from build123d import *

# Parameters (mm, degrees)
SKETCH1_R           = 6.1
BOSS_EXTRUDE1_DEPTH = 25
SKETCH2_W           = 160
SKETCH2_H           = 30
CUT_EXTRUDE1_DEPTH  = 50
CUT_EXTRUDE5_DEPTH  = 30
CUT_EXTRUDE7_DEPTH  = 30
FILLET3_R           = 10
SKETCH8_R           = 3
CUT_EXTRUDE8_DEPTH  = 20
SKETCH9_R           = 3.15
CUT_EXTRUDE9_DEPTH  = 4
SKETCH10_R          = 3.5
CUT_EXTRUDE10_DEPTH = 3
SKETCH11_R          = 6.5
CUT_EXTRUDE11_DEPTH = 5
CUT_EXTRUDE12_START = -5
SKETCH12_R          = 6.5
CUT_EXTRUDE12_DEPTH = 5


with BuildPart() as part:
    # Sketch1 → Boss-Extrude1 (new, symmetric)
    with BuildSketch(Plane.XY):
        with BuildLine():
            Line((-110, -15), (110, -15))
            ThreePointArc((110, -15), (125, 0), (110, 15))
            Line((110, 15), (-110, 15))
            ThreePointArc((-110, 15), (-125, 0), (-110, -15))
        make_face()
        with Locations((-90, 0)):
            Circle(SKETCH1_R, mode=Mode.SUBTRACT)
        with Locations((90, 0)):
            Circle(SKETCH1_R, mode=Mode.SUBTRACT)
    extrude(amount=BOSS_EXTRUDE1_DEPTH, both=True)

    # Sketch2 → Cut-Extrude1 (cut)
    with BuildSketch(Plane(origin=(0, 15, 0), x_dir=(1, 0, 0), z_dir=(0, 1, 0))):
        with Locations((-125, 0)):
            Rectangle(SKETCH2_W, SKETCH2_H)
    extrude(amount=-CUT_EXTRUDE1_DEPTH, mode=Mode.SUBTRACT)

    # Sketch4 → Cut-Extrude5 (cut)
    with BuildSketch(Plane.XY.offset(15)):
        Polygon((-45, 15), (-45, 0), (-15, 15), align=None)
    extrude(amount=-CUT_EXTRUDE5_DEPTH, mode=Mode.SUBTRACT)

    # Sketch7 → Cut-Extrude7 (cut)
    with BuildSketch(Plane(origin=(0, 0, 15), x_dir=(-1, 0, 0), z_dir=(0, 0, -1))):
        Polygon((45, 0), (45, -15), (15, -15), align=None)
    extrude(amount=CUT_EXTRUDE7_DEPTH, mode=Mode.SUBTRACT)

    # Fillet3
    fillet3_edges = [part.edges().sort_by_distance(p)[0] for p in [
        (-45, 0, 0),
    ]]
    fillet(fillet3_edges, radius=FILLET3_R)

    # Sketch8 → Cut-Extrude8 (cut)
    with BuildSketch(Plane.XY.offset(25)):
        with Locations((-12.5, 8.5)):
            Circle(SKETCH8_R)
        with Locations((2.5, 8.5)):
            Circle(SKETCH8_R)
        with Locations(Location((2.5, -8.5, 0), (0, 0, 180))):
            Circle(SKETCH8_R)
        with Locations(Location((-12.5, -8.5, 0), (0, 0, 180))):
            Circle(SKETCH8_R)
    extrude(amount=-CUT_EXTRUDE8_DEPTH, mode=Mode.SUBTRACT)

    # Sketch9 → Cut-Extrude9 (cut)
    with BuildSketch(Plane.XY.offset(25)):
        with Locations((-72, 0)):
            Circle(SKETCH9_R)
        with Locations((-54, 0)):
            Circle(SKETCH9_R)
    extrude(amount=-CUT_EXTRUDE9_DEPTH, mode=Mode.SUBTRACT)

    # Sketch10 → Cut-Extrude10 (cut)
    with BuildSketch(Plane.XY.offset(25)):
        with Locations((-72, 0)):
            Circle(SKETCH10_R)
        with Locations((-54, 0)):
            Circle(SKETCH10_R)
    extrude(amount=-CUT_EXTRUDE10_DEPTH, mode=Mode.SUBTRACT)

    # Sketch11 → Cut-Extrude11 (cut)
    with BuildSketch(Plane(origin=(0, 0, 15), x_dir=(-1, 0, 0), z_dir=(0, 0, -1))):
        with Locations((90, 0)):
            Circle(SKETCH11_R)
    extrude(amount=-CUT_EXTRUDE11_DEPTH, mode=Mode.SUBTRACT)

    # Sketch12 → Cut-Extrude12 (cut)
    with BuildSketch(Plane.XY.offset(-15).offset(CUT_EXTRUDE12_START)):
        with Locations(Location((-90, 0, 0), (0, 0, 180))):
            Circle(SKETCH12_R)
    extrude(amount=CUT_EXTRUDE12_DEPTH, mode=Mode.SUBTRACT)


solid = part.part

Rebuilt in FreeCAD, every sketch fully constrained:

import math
import FreeCAD as App
import Part
import Sketcher
from FreeCAD import Vector
Q = App.Units.Quantity


def edges_at(feature, points):
    """Names of the edges that pass closest to the given points."""
    edges = feature.Shape.Edges
    near = lambda p: min(range(len(edges)), key=lambda i: edges[i].distToShape(Part.Vertex(*p))[0])
    return sorted({f"Edge{near(p) + 1}" for p in points})


def add_polygon(sketch, points):
    """Adds a closed chain of lines whose ends are joined by coincident constraints."""
    first, n = sketch.GeometryCount, len(points)
    for a, b in zip(points, points[1:] + points[:1]):
        sketch.addGeometry(Part.LineSegment(App.Vector(*a, 0), App.Vector(*b, 0)), False)
    for i in range(n):
        sketch.addConstraint(Sketcher.Constraint("Coincident", first + i, 2, first + (i + 1) % n, 1))

doc = App.newDocument("Part")
body = doc.addObject("PartDesign::Body", "Body")

sketch1 = body.newObject("Sketcher::SketchObject", "Sketch")
sketch1.AttachmentSupport = (doc.getObject("XY_Plane"), [""])
sketch1.MapMode = "FlatFace"
sketch1.addGeometry([
    Part.LineSegment(Vector(-110, -15, 0), Vector(110, -15, 0)),
    Part.ArcOfCircle(Part.Circle(Vector(110, 0, 0), Vector(0, 0, 1), 15), math.radians(-90), math.radians(90)),
    Part.LineSegment(Vector(110, 15, 0), Vector(-110, 15, 0)),
    Part.ArcOfCircle(Part.Circle(Vector(-110, 0, 0), Vector(0, 0, 1), 15), math.radians(90), math.radians(270)),
    Part.Circle(Vector(-90, 0, 0), Vector(0, 0, 1), 6.1),
    Part.Circle(Vector(90, 0, 0), Vector(0, 0, 1), 6.1),
], False)
sketch1.addConstraint([
    Sketcher.Constraint("Tangent", 0, 2, 1, 1),
    Sketcher.Constraint("Tangent", 1, 2, 2, 1),
    Sketcher.Constraint("Tangent", 2, 2, 3, 1),
    Sketcher.Constraint("Tangent", 3, 2, 0, 1),
    Sketcher.Constraint("Horizontal", 0),
    Sketcher.Constraint("Horizontal", 2),
    Sketcher.Constraint("Equal", 4, 5),
    Sketcher.Constraint("Symmetric", 1, 3, 3, 3, -1, 1),
    Sketcher.Constraint("Symmetric", 4, 3, 5, 3, -1, 1),
    Sketcher.Constraint("PointOnObject", 4, 3, -1),
    Sketcher.Constraint("Radius", 1, Q("15 mm")),
    Sketcher.Constraint("Diameter", 4, Q("12.2 mm")),
    Sketcher.Constraint("DistanceX", 0, 1, 0, 2, Q("220 mm")),
    Sketcher.Constraint("DistanceX", 4, 3, -1, 1, Q("90 mm")),
])
pad1 = body.newObject("PartDesign::Pad", "Pad")
pad1.Profile = sketch1
pad1.Length = 50
pad1.Midplane = True

sketch2 = body.newObject("Sketcher::SketchObject", "Sketch001")
sketch2.AttachmentSupport = (doc.getObject("XZ_Plane"), [""])
sketch2.MapMode = "FlatFace"
sketch2.AttachmentOffset = App.Placement(Vector(0, 0, -15), App.Rotation())
add_polygon(sketch2, [(-205, -15), (-205, 15), (-45, 15), (-45, -15)])
sketch2.addConstraint([
    Sketcher.Constraint("Vertical", 0),
    Sketcher.Constraint("Horizontal", 1),
    Sketcher.Constraint("Vertical", 2),
    Sketcher.Constraint("Horizontal", 3),
    Sketcher.Constraint("DistanceX", 1, 1, 1, 2, Q("160 mm")),
    Sketcher.Constraint("DistanceY", 0, 1, 0, 2, Q("30 mm")),
    Sketcher.Constraint("DistanceX", 0, 2, -1, 1, Q("205 mm")),
    Sketcher.Constraint("DistanceY", -1, 1, 0, 2, Q("15 mm")),
])
pocket1 = body.newObject("PartDesign::Pocket", "Pocket")
pocket1.Profile = sketch2
pocket1.Length = 50
pocket1.Reversed = True

sketch3 = body.newObject("Sketcher::SketchObject", "Sketch002")
sketch3.AttachmentSupport = (doc.getObject("XY_Plane"), [""])
sketch3.MapMode = "FlatFace"
sketch3.AttachmentOffset = App.Placement(Vector(0, 0, 15), App.Rotation())
add_polygon(sketch3, [(-45, 15), (-45, 0), (-15, 15)])
sketch3.addConstraint([
    Sketcher.Constraint("Vertical", 0),
    Sketcher.Constraint("Horizontal", 2),
    Sketcher.Constraint("PointOnObject", 0, 2, -1),
    Sketcher.Constraint("DistanceX", 2, 2, 2, 1, Q("30 mm")),
    Sketcher.Constraint("DistanceY", 0, 2, 0, 1, Q("15 mm")),
    Sketcher.Constraint("DistanceX", 0, 2, -1, 1, Q("45 mm")),
])
pocket2 = body.newObject("PartDesign::Pocket", "Pocket001")
pocket2.Profile = sketch3
pocket2.Length = 30

sketch4 = body.newObject("Sketcher::SketchObject", "Sketch003")
sketch4.AttachmentSupport = (doc.getObject("XY_Plane"), [""])
sketch4.MapMode = "FlatFace"
sketch4.AttachmentOffset = App.Placement(Vector(0, 0, 15), App.Rotation())
add_polygon(sketch4, [(-45, -15), (-45, 0), (-15, -15)])
sketch4.addConstraint([
    Sketcher.Constraint("Vertical", 0),
    Sketcher.Constraint("Horizontal", 2),
    Sketcher.Constraint("PointOnObject", 0, 2, -1),
    Sketcher.Constraint("DistanceX", 2, 2, 2, 1, Q("30 mm")),
    Sketcher.Constraint("DistanceY", 0, 1, 0, 2, Q("15 mm")),
    Sketcher.Constraint("DistanceX", 0, 2, -1, 1, Q("45 mm")),
])
pocket3 = body.newObject("PartDesign::Pocket", "Pocket002")
pocket3.Profile = sketch4
pocket3.Length = 30
doc.recompute()

fillet = body.newObject("PartDesign::Fillet", "Fillet")
fillet.Base = (pocket3, edges_at(pocket3, [(-45, 0, 0)]))
fillet.Radius = 10

sketch5 = body.newObject("Sketcher::SketchObject", "Sketch004")
sketch5.AttachmentSupport = (doc.getObject("XY_Plane"), [""])
sketch5.MapMode = "FlatFace"
sketch5.AttachmentOffset = App.Placement(Vector(0, 0, 25), App.Rotation())
sketch5.addGeometry([
    Part.Circle(Vector(-12.5, 8.5, 0), Vector(0, 0, 1), 3),
    Part.Circle(Vector(2.5, 8.5, 0), Vector(0, 0, 1), 3),
    Part.Circle(Vector(2.5, -8.5, 0), Vector(0, 0, 1), 3),
    Part.Circle(Vector(-12.5, -8.5, 0), Vector(0, 0, 1), 3),
], False)
sketch5.addConstraint([
    Sketcher.Constraint("Equal", 0, 1),
    Sketcher.Constraint("Equal", 1, 2),
    Sketcher.Constraint("Equal", 2, 3),
    Sketcher.Constraint("Symmetric", 1, 3, 2, 3, -1),
    Sketcher.Constraint("Symmetric", 0, 3, 3, 3, -1),
    Sketcher.Constraint("Horizontal", 0, 3, 1, 3),
    Sketcher.Constraint("Diameter", 0, Q("6 mm")),
    Sketcher.Constraint("DistanceX", 0, 3, 1, 3, Q("15 mm")),
    Sketcher.Constraint("DistanceY", 2, 3, 1, 3, Q("17 mm")),
    Sketcher.Constraint("DistanceX", 0, 3, -1, 1, Q("12.5 mm")),
])
pocket4 = body.newObject("PartDesign::Pocket", "Pocket003")
pocket4.Profile = sketch5
pocket4.Length = 20

sketch6 = body.newObject("Sketcher::SketchObject", "Sketch005")
sketch6.AttachmentSupport = (doc.getObject("XY_Plane"), [""])
sketch6.MapMode = "FlatFace"
sketch6.AttachmentOffset = App.Placement(Vector(0, 0, 25), App.Rotation())
sketch6.addGeometry([
    Part.Circle(Vector(-72, 0, 0), Vector(0, 0, 1), 3.15),
    Part.Circle(Vector(-54, 0, 0), Vector(0, 0, 1), 3.15),
], False)
sketch6.addConstraint([
    Sketcher.Constraint("Equal", 0, 1),
    Sketcher.Constraint("PointOnObject", 0, 3, -1),
    Sketcher.Constraint("PointOnObject", 1, 3, -1),
    Sketcher.Constraint("Diameter", 0, Q("6.3 mm")),
    Sketcher.Constraint("DistanceX", 0, 3, -1, 1, Q("72 mm")),
    Sketcher.Constraint("DistanceX", 1, 3, -1, 1, Q("54 mm")),
])
pocket5 = body.newObject("PartDesign::Pocket", "Pocket004")
pocket5.Profile = sketch6
pocket5.Length = 4

sketch7 = body.newObject("Sketcher::SketchObject", "Sketch006")
sketch7.AttachmentSupport = (doc.getObject("XY_Plane"), [""])
sketch7.MapMode = "FlatFace"
sketch7.AttachmentOffset = App.Placement(Vector(0, 0, 25), App.Rotation())
sketch7.addGeometry([
    Part.Circle(Vector(-72, 0, 0), Vector(0, 0, 1), 3.5),
    Part.Circle(Vector(-54, 0, 0), Vector(0, 0, 1), 3.5),
], False)
sketch7.addConstraint([
    Sketcher.Constraint("Equal", 0, 1),
    Sketcher.Constraint("PointOnObject", 0, 3, -1),
    Sketcher.Constraint("PointOnObject", 1, 3, -1),
    Sketcher.Constraint("Diameter", 0, Q("7 mm")),
    Sketcher.Constraint("DistanceX", 0, 3, -1, 1, Q("72 mm")),
    Sketcher.Constraint("DistanceX", 1, 3, -1, 1, Q("54 mm")),
])
pocket6 = body.newObject("PartDesign::Pocket", "Pocket005")
pocket6.Profile = sketch7
pocket6.Length = 3

sketch8 = body.newObject("Sketcher::SketchObject", "Sketch007")
sketch8.AttachmentSupport = (doc.getObject("XY_Plane"), [""])
sketch8.MapMode = "FlatFace"
sketch8.AttachmentOffset = App.Placement(Vector(0, 0, 15), App.Rotation())
sketch8.addGeometry(Part.Circle(Vector(-90, 0, 0), Vector(0, 0, 1), 6.5), False)
sketch8.addConstraint([
    Sketcher.Constraint("PointOnObject", 0, 3, -1),
    Sketcher.Constraint("Diameter", 0, Q("13 mm")),
    Sketcher.Constraint("DistanceX", 0, 3, -1, 1, Q("90 mm")),
])
pocket7 = body.newObject("PartDesign::Pocket", "Pocket006")
pocket7.Profile = sketch8
pocket7.Length = 5
pocket7.Reversed = True

sketch9 = body.newObject("Sketcher::SketchObject", "Sketch008")
sketch9.AttachmentSupport = (doc.getObject("XY_Plane"), [""])
sketch9.MapMode = "FlatFace"
sketch9.AttachmentOffset = App.Placement(Vector(0, 0, -20), App.Rotation())
sketch9.addGeometry(Part.Circle(Vector(-90, 0, 0), Vector(0, 0, 1), 6.5), False)
sketch9.addConstraint([
    Sketcher.Constraint("PointOnObject", 0, 3, -1),
    Sketcher.Constraint("Diameter", 0, Q("13 mm")),
    Sketcher.Constraint("DistanceX", 0, 3, -1, 1, Q("90 mm")),
])
pocket8 = body.newObject("PartDesign::Pocket", "Pocket007")
pocket8.Profile = sketch9
pocket8.Length = 5
pocket8.Reversed = True

doc.recompute()
